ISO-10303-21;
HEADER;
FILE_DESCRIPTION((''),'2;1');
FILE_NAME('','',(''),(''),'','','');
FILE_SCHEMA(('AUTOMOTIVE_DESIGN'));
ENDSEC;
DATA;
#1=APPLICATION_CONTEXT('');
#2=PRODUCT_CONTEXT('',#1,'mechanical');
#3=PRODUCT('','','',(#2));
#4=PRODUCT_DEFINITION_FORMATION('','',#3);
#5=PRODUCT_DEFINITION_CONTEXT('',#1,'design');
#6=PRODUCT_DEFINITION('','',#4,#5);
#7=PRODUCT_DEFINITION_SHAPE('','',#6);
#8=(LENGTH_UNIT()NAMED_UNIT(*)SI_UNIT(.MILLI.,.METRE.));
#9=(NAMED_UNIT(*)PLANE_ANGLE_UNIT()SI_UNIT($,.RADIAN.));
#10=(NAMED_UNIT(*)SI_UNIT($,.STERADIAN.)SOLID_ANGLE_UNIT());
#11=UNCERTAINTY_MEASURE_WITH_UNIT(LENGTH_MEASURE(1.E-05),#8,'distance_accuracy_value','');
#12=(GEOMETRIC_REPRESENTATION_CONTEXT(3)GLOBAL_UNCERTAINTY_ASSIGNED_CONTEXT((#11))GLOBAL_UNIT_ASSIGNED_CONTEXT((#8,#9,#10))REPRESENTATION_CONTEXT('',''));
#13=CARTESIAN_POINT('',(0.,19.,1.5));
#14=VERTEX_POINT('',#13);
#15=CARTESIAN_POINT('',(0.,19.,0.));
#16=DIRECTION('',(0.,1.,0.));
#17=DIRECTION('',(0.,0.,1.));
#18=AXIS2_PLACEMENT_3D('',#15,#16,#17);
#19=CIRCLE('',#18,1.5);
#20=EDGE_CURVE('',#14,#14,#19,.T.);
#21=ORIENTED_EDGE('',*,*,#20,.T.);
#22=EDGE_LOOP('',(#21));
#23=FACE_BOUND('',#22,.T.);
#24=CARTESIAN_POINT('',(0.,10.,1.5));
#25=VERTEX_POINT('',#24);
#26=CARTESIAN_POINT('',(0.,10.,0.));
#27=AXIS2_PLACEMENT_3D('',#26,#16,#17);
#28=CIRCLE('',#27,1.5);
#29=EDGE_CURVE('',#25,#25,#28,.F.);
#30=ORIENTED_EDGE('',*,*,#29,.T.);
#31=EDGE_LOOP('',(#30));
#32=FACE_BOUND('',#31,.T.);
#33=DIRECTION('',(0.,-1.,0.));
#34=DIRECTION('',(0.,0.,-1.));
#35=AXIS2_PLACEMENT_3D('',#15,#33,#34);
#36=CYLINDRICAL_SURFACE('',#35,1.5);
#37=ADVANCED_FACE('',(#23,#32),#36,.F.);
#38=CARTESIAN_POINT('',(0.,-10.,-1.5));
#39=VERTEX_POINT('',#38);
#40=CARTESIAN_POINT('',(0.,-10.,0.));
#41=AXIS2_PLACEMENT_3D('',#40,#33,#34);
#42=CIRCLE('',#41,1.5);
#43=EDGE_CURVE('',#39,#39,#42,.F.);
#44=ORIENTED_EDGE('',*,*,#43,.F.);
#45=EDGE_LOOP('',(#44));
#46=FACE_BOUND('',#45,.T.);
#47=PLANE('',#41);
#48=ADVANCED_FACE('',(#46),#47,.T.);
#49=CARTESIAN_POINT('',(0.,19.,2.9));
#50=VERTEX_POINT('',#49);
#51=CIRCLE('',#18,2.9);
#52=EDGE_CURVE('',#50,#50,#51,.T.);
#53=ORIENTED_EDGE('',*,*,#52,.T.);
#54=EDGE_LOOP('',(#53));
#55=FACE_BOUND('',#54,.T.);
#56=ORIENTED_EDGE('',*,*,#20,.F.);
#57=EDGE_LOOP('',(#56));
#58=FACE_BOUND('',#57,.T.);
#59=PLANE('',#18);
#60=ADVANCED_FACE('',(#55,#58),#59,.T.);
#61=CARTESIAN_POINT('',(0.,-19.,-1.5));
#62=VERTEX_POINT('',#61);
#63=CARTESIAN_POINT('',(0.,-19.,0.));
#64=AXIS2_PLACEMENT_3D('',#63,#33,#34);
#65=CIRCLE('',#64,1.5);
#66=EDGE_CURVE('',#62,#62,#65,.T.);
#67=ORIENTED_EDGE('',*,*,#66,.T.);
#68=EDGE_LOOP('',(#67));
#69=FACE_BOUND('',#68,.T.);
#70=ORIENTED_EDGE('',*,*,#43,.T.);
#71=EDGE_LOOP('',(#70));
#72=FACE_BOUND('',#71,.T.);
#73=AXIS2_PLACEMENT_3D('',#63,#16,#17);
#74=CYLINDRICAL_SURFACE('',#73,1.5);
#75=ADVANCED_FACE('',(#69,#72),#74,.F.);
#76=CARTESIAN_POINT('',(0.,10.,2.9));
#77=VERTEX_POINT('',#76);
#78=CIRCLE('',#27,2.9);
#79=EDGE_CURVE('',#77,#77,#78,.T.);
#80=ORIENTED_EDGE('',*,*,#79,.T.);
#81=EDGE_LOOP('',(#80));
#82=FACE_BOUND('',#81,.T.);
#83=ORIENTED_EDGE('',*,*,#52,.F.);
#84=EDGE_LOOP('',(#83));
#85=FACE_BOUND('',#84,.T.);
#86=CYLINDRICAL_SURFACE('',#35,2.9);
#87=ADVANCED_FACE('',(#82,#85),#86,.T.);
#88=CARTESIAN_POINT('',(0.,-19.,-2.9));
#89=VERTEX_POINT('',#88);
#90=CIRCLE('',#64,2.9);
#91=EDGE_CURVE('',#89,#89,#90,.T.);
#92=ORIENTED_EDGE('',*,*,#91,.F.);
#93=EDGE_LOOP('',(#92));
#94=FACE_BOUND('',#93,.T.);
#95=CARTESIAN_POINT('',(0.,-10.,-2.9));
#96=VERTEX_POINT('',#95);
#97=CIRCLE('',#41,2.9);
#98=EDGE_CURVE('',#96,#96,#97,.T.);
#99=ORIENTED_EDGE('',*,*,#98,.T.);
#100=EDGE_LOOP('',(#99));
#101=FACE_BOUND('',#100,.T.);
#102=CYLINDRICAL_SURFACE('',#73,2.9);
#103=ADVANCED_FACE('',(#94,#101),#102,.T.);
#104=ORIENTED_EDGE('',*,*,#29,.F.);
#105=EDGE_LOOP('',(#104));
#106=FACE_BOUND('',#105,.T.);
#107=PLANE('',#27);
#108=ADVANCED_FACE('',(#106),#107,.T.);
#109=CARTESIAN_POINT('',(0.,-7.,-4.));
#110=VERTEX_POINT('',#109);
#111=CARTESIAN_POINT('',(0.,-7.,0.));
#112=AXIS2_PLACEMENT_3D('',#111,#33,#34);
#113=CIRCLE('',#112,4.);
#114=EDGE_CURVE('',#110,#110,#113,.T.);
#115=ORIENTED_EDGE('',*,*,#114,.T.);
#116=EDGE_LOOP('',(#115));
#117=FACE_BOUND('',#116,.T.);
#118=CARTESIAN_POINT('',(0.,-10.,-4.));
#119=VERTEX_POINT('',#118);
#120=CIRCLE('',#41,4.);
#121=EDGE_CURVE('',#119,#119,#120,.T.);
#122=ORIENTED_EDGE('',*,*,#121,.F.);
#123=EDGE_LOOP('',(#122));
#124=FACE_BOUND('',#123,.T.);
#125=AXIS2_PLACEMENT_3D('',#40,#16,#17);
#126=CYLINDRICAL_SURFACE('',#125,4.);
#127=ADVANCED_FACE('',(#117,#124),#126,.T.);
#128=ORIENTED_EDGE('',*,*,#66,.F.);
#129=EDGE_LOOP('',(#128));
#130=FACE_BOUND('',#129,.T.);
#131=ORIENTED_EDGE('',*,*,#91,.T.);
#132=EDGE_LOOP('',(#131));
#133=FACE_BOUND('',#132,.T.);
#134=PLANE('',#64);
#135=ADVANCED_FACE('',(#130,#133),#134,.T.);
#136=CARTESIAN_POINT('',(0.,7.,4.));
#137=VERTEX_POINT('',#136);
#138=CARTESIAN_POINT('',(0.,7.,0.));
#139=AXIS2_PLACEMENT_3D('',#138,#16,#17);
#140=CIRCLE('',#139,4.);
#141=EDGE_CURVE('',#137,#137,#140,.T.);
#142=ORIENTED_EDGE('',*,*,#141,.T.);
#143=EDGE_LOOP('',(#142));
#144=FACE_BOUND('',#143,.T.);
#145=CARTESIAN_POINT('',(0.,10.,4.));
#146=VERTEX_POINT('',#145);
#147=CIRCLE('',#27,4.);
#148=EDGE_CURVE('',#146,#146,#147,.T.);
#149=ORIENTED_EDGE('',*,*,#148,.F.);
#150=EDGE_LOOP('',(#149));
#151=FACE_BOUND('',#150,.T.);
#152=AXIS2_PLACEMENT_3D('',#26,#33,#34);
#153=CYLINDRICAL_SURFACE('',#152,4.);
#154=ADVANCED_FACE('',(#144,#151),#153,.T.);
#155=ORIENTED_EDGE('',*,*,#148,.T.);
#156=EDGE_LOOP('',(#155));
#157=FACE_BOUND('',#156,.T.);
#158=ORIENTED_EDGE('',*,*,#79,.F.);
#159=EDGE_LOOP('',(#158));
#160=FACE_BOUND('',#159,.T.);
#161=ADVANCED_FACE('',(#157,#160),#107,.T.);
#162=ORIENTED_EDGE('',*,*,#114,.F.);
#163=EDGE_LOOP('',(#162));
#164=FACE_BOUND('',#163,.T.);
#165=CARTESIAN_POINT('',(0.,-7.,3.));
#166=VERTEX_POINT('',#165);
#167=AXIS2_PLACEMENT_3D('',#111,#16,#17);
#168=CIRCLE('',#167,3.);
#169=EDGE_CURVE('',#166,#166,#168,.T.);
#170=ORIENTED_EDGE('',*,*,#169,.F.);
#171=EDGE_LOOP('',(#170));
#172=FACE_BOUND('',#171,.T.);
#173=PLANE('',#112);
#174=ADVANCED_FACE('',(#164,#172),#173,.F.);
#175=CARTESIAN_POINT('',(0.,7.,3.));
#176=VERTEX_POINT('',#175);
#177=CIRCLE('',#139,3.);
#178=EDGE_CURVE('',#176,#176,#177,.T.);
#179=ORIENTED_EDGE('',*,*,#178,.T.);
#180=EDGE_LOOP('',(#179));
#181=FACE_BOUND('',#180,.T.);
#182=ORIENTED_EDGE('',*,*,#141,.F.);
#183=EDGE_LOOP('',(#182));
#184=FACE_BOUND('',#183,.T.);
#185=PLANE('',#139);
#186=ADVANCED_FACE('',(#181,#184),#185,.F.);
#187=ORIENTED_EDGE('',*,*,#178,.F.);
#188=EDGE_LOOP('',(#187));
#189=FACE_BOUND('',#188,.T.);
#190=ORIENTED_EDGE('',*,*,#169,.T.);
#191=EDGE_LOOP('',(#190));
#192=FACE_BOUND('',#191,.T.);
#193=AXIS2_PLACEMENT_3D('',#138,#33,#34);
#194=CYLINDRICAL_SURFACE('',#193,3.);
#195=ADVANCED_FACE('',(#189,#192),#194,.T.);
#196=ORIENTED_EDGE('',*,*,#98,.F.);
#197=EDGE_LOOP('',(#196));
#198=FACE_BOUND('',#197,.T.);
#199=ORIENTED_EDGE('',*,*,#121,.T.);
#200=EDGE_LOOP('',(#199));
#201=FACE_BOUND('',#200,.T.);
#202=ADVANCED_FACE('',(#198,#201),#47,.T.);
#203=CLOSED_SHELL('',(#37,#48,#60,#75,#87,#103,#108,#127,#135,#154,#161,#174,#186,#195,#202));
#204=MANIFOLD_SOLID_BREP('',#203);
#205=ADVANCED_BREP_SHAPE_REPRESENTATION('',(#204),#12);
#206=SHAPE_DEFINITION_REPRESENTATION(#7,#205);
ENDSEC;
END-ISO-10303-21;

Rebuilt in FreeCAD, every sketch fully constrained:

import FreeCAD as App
import Part
import Sketcher

V = App.Vector
Q = App.Units.Quantity

doc = App.newDocument("Part")
body = doc.addObject("PartDesign::Body", "Body")

# Sketch on XZ plane
sketch1 = body.newObject("Sketcher::SketchObject", "Sketch")
sketch1.AttachmentSupport = (doc.getObject("XZ_Plane"), [""])
sketch1.MapMode = "FlatFace"
sketch1.addGeometry(Part.Circle(V(0, 0, 0), V(0, 0, 1), 3), False)
sketch1.addConstraint(Sketcher.Constraint("Coincident", 0, 3, -1, 1))
sketch1.addConstraint(Sketcher.Constraint("Diameter", 0, Q("6 mm")))
pad1 = body.newObject("PartDesign::Pad", "Pad")
pad1.Profile = sketch1
pad1.Length = 14
pad1.Midplane = True

# Sketch on XZ plane
sketch2 = body.newObject("Sketcher::SketchObject", "Sketch001")
sketch2.AttachmentSupport = (doc.getObject("XZ_Plane"), [""])
sketch2.MapMode = "FlatFace"
sketch2.AttachmentOffset = App.Placement(V(0, 0, 7), App.Rotation())
sketch2.addGeometry(Part.Circle(V(0, 0, 0), V(0, 0, 1), 4), False)
sketch2.addConstraint(Sketcher.Constraint("Coincident", 0, 3, -1, 1))
sketch2.addConstraint(Sketcher.Constraint("Diameter", 0, Q("8 mm")))
pad2 = body.newObject("PartDesign::Pad", "Pad001")
pad2.Profile = sketch2
pad2.Length = 3

# Sketch on XZ plane
sketch3 = body.newObject("Sketcher::SketchObject", "Sketch002")
sketch3.AttachmentSupport = (doc.getObject("XZ_Plane"), [""])
sketch3.MapMode = "FlatFace"
sketch3.AttachmentOffset = App.Placement(V(0, 0, -7), App.Rotation())
sketch3.addGeometry(Part.Circle(V(0, 0, 0), V(0, 0, 1), 4), False)
sketch3.addConstraint(Sketcher.Constraint("Coincident", 0, 3, -1, 1))
sketch3.addConstraint(Sketcher.Constraint("Diameter", 0, Q("8 mm")))
pad3 = body.newObject("PartDesign::Pad", "Pad002")
pad3.Profile = sketch3
pad3.Length = 3
pad3.Reversed = True

# Sketch on XZ plane
sketch4 = body.newObject("Sketcher::SketchObject", "Sketch003")
sketch4.AttachmentSupport = (doc.getObject("XZ_Plane"), [""])
sketch4.MapMode = "FlatFace"
sketch4.AttachmentOffset = App.Placement(V(0, 0, 10), App.Rotation())
sketch4.addGeometry(Part.Circle(V(0, 0, 0), V(0, 0, 1), 2.9), False)
sketch4.addGeometry(Part.Circle(V(0, 0, 0), V(0, 0, 1), 1.5), False)
sketch4.addConstraint(Sketcher.Constraint("Coincident", 0, 3, -1, 1))
sketch4.addConstraint(Sketcher.Constraint("Coincident", 1, 3, -1, 1))
sketch4.addConstraint(Sketcher.Constraint("Diameter", 1, Q("3 mm")))
sketch4.addConstraint(Sketcher.Constraint("Diameter", 0, Q("5.8 mm")))
pad4 = body.newObject("PartDesign::Pad", "Pad003")
pad4.Profile = sketch4
pad4.Length = 9

# Sketch on XZ plane
sketch5 = body.newObject("Sketcher::SketchObject", "Sketch004")
sketch5.AttachmentSupport = (doc.getObject("XZ_Plane"), [""])
sketch5.MapMode = "FlatFace"
sketch5.AttachmentOffset = App.Placement(V(0, 0, -10), App.Rotation())
sketch5.addGeometry(Part.Circle(V(0, 0, 0), V(0, 0, 1), 2.9), False)
sketch5.addGeometry(Part.Circle(V(0, 0, 0), V(0, 0, 1), 1.5), False)
sketch5.addConstraint(Sketcher.Constraint("Coincident", 0, 3, -1, 1))
sketch5.addConstraint(Sketcher.Constraint("Coincident", 1, 3, -1, 1))
sketch5.addConstraint(Sketcher.Constraint("Diameter", 1, Q("3 mm")))
sketch5.addConstraint(Sketcher.Constraint("Diameter", 0, Q("5.8 mm")))
pad5 = body.newObject("PartDesign::Pad", "Pad004")
pad5.Profile = sketch5
pad5.Length = 9
pad5.Reversed = True

doc.recompute()
